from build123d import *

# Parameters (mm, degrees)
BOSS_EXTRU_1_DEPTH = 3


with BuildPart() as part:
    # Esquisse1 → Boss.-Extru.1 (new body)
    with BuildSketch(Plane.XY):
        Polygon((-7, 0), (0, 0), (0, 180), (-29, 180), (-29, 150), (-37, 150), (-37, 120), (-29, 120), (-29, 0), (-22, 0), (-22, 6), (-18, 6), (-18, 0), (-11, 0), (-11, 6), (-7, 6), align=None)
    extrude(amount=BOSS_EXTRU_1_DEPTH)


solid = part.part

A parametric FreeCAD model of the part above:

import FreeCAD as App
import Part
import Sketcher
from FreeCAD import Vector
Q = App.Units.Quantity

doc = App.newDocument("Part")
body = doc.addObject("PartDesign::Body", "Body")

# Sketch on XY plane
sketch1 = body.newObject("Sketcher::SketchObject", "Sketch")
sketch1.AttachmentSupport = (doc.getObject("XY_Plane"), [""])
sketch1.MapMode = "FlatFace"
sketch1.addGeometry(Part.LineSegment(Vector(-7, 0, 0), Vector(0, 0, 0)), False)
sketch1.addGeometry(Part.LineSegment(Vector(0, 0, 0), Vector(0, 180, 0)), False)
sketch1.addGeometry(Part.LineSegment(Vector(0, 180, 0), Vector(-29, 180, 0)), False)
sketch1.addGeometry(Part.LineSegment(Vector(-29, 180, 0), Vector(-29, 150, 0)), False)
sketch1.addGeometry(Part.LineSegment(Vector(-29, 150, 0), Vector(-37, 150, 0)), False)
sketch1.addGeometry(Part.LineSegment(Vector(-37, 150, 0), Vector(-37, 120, 0)), False)
sketch1.addGeometry(Part.LineSegment(Vector(-37, 120, 0), Vector(-29, 120, 0)), False)
sketch1.addGeometry(Part.LineSegment(Vector(-29, 120, 0), Vector(-29, 0, 0)), False)
sketch1.addGeometry(Part.LineSegment(Vector(-29, 0, 0), Vector(-22, 0, 0)), False)
sketch1.addGeometry(Part.LineSegment(Vector(-22, 0, 0), Vector(-22, 6, 0)), False)
sketch1.addGeometry(Part.LineSegment(Vector(-22, 6, 0), Vector(-18, 6, 0)), False)
sketch1.addGeometry(Part.LineSegment(Vector(-18, 6, 0), Vector(-18, 0, 0)), False)
sketch1.addGeometry(Part.LineSegment(Vector(-18, 0, 0), Vector(-11, 0, 0)), False)
sketch1.addGeometry(Part.LineSegment(Vector(-11, 0, 0), Vector(-11, 6, 0)), False)
sketch1.addGeometry(Part.LineSegment(Vector(-11, 6, 0), Vector(-7, 6, 0)), False)
sketch1.addGeometry(Part.LineSegment(Vector(-7, 6, 0), Vector(-7, 0, 0)), False)
sketch1.addConstraint(Sketcher.Constraint("Coincident", 0, 2, 1, 1))
sketch1.addConstraint(Sketcher.Constraint("Coincident", 1, 2, 2, 1))
sketch1.addConstraint(Sketcher.Constraint("Coincident", 2, 2, 3, 1))
sketch1.addConstraint(Sketcher.Constraint("Coincident", 3, 2, 4, 1))
sketch1.addConstraint(Sketcher.Constraint("Coincident", 4, 2, 5, 1))
sketch1.addConstraint(Sketcher.Constraint("Coincident", 5, 2, 6, 1))
sketch1.addConstraint(Sketcher.Constraint("Coincident", 6, 2, 7, 1))
sketch1.addConstraint(Sketcher.Constraint("Coincident", 7, 2, 8, 1))
sketch1.addConstraint(Sketcher.Constraint("Coincident", 8, 2, 9, 1))
sketch1.addConstraint(Sketcher.Constraint("Coincident", 9, 2, 10, 1))
sketch1.addConstraint(Sketcher.Constraint("Coincident", 10, 2, 11, 1))
sketch1.addConstraint(Sketcher.Constraint("Coincident", 11, 2, 12, 1))
sketch1.addConstraint(Sketcher.Constraint("Coincident", 12, 2, 13, 1))
sketch1.addConstraint(Sketcher.Constraint("Coincident", 13, 2, 14, 1))
sketch1.addConstraint(Sketcher.Constraint("Coincident", 14, 2, 15, 1))
sketch1.addConstraint(Sketcher.Constraint("Coincident", 15, 2, 0, 1))
sketch1.addConstraint(Sketcher.Constraint("Horizontal", 0))
sketch1.addConstraint(Sketcher.Constraint("Vertical", 1))
sketch1.addConstraint(Sketcher.Constraint("Horizontal", 2))
sketch1.addConstraint(Sketcher.Constraint("Vertical", 3))
sketch1.addConstraint(Sketcher.Constraint("Horizontal", 4))
sketch1.addConstraint(Sketcher.Constraint("Vertical", 5))
sketch1.addConstraint(Sketcher.Constraint("Horizontal", 6))
sketch1.addConstraint(Sketcher.Constraint("Vertical", 7))
sketch1.addConstraint(Sketcher.Constraint("Horizontal", 8))
sketch1.addConstraint(Sketcher.Constraint("Vertical", 9))
sketch1.addConstraint(Sketcher.Constraint("Horizontal", 10))
sketch1.addConstraint(Sketcher.Constraint("Vertical", 11))
sketch1.addConstraint(Sketcher.Constraint("Horizontal", 12))
sketch1.addConstraint(Sketcher.Constraint("Vertical", 13))
sketch1.addConstraint(Sketcher.Constraint("Horizontal", 14))
sketch1.addConstraint(Sketcher.Constraint("Vertical", 15))
sketch1.addConstraint(Sketcher.Constraint("Coincident", 0, 2, -1, 1))
sketch1.addConstraint(Sketcher.Constraint("PointOnObject", 7, 2, -1))
sketch1.addConstraint(Sketcher.Constraint("PointOnObject", 11, 2, -1))
sketch1.addConstraint(Sketcher.Constraint("Horizontal", 10, 2, 13, 2))
sketch1.addConstraint(Sketcher.Constraint("Vertical", 3, 2, 6, 2))
sketch1.addConstraint(Sketcher.Constraint("Equal", 0, 8))
sketch1.addConstraint(Sketcher.Constraint("Equal", 8, 12))
sketch1.addConstraint(Sketcher.Constraint("Equal", 10, 14))
sketch1.addConstraint(Sketcher.Constraint("Equal", 3, 5))
sketch1.addConstraint(Sketcher.Constraint("DistanceX", 0, 1, 0, 2, Q("7 mm")))
sketch1.addConstraint(Sketcher.Constraint("DistanceX", 2, 2, 2, 1, Q("29 mm")))
sketch1.addConstraint(Sketcher.Constraint("DistanceX", 4, 2, 4, 1, Q("8 mm")))
sketch1.addConstraint(Sketcher.Constraint("DistanceY", 1, 1, 1, 2, Q("180 mm")))
sketch1.addConstraint(Sketcher.Constraint("DistanceY", 3, 2, 3, 1, Q("30 mm")))
sketch1.addConstraint(Sketcher.Constraint("DistanceY", 9, 1, 9, 2, Q("6 mm")))
pad1 = body.newObject("PartDesign::Pad", "Pad")
pad1.Profile = sketch1
pad1.Length = 3

doc.recompute()
